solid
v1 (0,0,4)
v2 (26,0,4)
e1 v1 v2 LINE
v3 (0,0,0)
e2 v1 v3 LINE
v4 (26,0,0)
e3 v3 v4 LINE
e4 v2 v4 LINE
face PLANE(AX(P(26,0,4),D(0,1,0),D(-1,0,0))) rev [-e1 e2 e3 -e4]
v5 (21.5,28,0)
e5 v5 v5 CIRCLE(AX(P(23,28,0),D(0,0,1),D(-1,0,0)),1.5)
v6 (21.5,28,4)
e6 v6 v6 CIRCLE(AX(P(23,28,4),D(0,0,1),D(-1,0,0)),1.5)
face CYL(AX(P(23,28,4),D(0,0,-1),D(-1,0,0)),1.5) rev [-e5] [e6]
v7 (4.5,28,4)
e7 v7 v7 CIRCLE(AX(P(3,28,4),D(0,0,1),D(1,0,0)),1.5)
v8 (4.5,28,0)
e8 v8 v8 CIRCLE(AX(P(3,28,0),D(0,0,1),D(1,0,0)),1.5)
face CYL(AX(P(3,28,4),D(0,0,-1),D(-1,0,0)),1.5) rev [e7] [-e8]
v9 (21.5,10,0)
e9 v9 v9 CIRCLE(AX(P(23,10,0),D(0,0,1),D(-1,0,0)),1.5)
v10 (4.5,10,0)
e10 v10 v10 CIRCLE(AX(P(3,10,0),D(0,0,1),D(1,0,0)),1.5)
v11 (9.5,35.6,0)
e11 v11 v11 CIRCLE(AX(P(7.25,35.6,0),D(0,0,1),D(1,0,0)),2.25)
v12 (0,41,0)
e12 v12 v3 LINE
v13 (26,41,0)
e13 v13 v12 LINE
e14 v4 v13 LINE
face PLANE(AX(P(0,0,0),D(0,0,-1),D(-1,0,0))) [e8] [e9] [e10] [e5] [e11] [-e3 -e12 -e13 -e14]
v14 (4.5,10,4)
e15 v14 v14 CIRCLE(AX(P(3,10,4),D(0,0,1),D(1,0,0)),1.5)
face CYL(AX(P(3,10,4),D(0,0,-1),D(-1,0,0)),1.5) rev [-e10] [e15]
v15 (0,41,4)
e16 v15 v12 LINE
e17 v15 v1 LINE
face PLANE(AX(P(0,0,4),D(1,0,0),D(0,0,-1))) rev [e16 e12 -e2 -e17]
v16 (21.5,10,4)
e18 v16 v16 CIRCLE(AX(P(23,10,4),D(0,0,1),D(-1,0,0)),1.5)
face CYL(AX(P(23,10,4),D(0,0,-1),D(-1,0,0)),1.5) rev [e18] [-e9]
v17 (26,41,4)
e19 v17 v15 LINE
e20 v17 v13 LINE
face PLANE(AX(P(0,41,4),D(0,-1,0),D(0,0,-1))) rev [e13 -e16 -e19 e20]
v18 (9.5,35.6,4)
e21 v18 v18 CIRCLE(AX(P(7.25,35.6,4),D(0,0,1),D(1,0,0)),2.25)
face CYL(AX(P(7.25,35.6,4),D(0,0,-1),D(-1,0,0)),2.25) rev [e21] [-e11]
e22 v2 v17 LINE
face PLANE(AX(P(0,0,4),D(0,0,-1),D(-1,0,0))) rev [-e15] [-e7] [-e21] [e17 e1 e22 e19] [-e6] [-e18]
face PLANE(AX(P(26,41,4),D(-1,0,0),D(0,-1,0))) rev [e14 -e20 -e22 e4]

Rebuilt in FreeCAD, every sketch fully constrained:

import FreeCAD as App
import Part
import Sketcher

V = App.Vector
Q = App.Units.Quantity


def add_polygon(sketch, points):
    """Adds a closed chain of lines whose ends are joined by coincident constraints."""
    first, n = sketch.GeometryCount, len(points)
    for a, b in zip(points, points[1:] + points[:1]):
        sketch.addGeometry(Part.LineSegment(App.Vector(*a, 0), App.Vector(*b, 0)), False)
    for i in range(n):
        sketch.addConstraint(Sketcher.Constraint("Coincident", first + i, 2, first + (i + 1) % n, 1))

doc = App.newDocument("Part")
body = doc.addObject("PartDesign::Body", "Body")

sketch1 = body.newObject("Sketcher::SketchObject", "Sketch")
sketch1.AttachmentSupport = (doc.getObject("XY_Plane"), [""])
sketch1.MapMode = "FlatFace"
add_polygon(sketch1, [(0, 41), (0, 0), (26, 0), (26, 41)])
sketch1.addGeometry(Part.Circle(V(3, 10, 0), V(0, 0, 1), 1.5), False)
sketch1.addGeometry(Part.Circle(V(23, 10, 0), V(0, 0, 1), 1.5), False)
sketch1.addGeometry(Part.Circle(V(3, 28, 0), V(0, 0, 1), 1.5), False)
sketch1.addGeometry(Part.Circle(V(7.25, 35.6, 0), V(0, 0, 1), 2.25), False)
sketch1.addGeometry(Part.Circle(V(23, 28, 0), V(0, 0, 1), 1.5), False)
sketch1.addConstraint(Sketcher.Constraint("Vertical", 0))
sketch1.addConstraint(Sketcher.Constraint("Horizontal", 1))
sketch1.addConstraint(Sketcher.Constraint("Vertical", 2))
sketch1.addConstraint(Sketcher.Constraint("Horizontal", 3))
sketch1.addConstraint(Sketcher.Constraint("Coincident", 0, 2, -1, 1))
sketch1.addConstraint(Sketcher.Constraint("Equal", 4, 5))
sketch1.addConstraint(Sketcher.Constraint("Equal", 5, 6))
sketch1.addConstraint(Sketcher.Constraint("Equal", 6, 8))
sketch1.addConstraint(Sketcher.Constraint("Horizontal", 4, 3, 5, 3))
sketch1.addConstraint(Sketcher.Constraint("Horizontal", 6, 3, 8, 3))
sketch1.addConstraint(Sketcher.Constraint("Vertical", 4, 3, 6, 3))
sketch1.addConstraint(Sketcher.Constraint("Vertical", 5, 3, 8, 3))
sketch1.addConstraint(Sketcher.Constraint("Diameter", 4, Q("3 mm")))
sketch1.addConstraint(Sketcher.Constraint("Diameter", 7, Q("4.5 mm")))
sketch1.addConstraint(Sketcher.Constraint("DistanceX", 1, 1, 1, 2, Q("26 mm")))
sketch1.addConstraint(Sketcher.Constraint("DistanceY", 0, 2, 0, 1, Q("41 mm")))
sketch1.addConstraint(Sketcher.Constraint("DistanceX", -1, 1, 4, 3, Q("3 mm")))
sketch1.addConstraint(Sketcher.Constraint("DistanceY", -1, 1, 4, 3, Q("10 mm")))
sketch1.addConstraint(Sketcher.Constraint("DistanceX", -1, 1, 5, 3, Q("23 mm")))
sketch1.addConstraint(Sketcher.Constraint("DistanceY", -1, 1, 6, 3, Q("28 mm")))
sketch1.addConstraint(Sketcher.Constraint("DistanceY", -1, 1, 7, 3, Q("35.6 mm")))
sketch1.addConstraint(Sketcher.Constraint("DistanceX", -1, 1, 7, 3, Q("7.25 mm")))
pad1 = body.newObject("PartDesign::Pad", "Pad")
pad1.Profile = sketch1
pad1.Length = 4

doc.recompute()
